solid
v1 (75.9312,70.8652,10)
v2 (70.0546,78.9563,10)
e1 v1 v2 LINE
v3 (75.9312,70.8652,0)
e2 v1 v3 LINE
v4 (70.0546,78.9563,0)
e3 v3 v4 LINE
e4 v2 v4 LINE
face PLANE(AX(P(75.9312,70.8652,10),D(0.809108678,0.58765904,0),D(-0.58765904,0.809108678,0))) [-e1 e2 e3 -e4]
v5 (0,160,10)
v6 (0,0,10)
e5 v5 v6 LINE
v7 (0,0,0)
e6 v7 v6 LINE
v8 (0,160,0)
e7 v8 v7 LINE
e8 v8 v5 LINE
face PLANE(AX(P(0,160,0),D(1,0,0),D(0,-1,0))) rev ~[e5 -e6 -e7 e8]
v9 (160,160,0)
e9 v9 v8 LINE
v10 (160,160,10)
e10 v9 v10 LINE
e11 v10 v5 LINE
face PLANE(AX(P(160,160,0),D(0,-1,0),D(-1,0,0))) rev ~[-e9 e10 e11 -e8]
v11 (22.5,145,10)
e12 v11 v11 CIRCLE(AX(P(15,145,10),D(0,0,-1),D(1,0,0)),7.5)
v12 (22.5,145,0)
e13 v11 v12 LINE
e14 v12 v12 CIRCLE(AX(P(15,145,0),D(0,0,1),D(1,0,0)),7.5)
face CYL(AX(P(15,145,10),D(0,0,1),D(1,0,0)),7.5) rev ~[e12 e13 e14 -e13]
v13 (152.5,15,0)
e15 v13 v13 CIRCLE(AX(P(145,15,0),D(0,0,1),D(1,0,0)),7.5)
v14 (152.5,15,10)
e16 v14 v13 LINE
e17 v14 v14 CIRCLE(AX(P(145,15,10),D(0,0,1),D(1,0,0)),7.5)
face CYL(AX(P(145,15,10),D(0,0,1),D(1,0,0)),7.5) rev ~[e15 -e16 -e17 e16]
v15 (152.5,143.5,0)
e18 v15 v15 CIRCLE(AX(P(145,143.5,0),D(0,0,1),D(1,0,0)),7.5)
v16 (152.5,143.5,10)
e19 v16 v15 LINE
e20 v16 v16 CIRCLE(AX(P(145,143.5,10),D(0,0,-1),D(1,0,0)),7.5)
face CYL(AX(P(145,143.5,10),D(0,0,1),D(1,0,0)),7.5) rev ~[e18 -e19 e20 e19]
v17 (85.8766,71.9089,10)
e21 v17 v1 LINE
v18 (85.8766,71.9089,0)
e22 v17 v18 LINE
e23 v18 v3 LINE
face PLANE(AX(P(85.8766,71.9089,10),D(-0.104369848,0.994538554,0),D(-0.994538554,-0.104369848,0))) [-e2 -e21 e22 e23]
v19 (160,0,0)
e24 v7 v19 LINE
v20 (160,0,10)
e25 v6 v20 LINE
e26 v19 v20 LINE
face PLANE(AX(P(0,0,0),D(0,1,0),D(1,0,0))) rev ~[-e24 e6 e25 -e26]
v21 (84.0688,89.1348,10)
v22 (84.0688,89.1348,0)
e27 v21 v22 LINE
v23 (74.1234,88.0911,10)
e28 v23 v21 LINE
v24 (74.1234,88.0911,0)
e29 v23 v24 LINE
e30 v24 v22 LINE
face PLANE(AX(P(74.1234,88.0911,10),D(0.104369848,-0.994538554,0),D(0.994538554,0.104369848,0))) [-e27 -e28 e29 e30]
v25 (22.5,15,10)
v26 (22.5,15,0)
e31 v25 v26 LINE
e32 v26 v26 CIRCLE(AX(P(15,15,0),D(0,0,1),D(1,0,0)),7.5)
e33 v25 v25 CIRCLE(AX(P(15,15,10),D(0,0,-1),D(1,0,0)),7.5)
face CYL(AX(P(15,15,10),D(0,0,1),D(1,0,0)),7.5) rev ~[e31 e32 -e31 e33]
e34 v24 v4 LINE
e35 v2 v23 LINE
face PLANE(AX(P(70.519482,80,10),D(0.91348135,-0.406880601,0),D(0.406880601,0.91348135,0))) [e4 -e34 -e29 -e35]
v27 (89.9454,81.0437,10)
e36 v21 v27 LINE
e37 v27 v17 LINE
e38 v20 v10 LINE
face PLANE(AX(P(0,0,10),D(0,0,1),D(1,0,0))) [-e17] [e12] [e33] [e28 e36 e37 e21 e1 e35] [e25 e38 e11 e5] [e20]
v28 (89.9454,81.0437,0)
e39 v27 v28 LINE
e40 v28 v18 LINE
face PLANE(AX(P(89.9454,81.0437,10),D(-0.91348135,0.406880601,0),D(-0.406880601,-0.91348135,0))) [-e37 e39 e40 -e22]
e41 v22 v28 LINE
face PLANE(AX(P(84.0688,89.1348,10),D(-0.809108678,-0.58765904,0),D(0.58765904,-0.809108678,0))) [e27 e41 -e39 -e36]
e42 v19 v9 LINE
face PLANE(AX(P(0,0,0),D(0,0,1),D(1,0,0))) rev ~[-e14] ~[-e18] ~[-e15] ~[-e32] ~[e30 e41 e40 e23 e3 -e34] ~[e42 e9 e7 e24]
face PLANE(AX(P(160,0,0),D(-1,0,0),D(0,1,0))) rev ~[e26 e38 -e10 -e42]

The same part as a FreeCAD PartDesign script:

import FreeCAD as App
import Part
import Sketcher

V = App.Vector
Q = App.Units.Quantity

doc = App.newDocument("Part")
body = doc.addObject("PartDesign::Body", "Body")

sketch1 = body.newObject("Sketcher::SketchObject", "Sketch")
sketch1.AttachmentSupport = (doc.getObject("XY_Plane"), [""])
sketch1.MapMode = "FlatFace"
sketch1.addGeometry(Part.LineSegment(V(0, 160, 0), V(0, 0, 0)), False)
sketch1.addGeometry(Part.LineSegment(V(0, 0, 0), V(160, 0, 0)), False)
sketch1.addGeometry(Part.LineSegment(V(160, 0, 0), V(160, 160, 0)), False)
sketch1.addGeometry(Part.LineSegment(V(160, 160, 0), V(0, 160, 0)), False)
sketch1.addConstraint(Sketcher.Constraint("Coincident", 0, 2, 1, 1))
sketch1.addConstraint(Sketcher.Constraint("Coincident", 1, 2, 2, 1))
sketch1.addConstraint(Sketcher.Constraint("Coincident", 2, 2, 3, 1))
sketch1.addConstraint(Sketcher.Constraint("Coincident", 3, 2, 0, 1))
sketch1.addConstraint(Sketcher.Constraint("Vertical", 0))
sketch1.addConstraint(Sketcher.Constraint("Horizontal", 1))
sketch1.addConstraint(Sketcher.Constraint("Vertical", 2))
sketch1.addConstraint(Sketcher.Constraint("Horizontal", 3))
sketch1.addConstraint(Sketcher.Constraint("Coincident", 0, 2, -1, 1))
sketch1.addConstraint(Sketcher.Constraint("Equal", 3, 0))
sketch1.addConstraint(Sketcher.Constraint("DistanceX", 1, 1, 1, 2, Q("160 mm")))
pad1 = body.newObject("PartDesign::Pad", "Pad")
pad1.Profile = sketch1
pad1.Length = 10

sketch2 = body.newObject("Sketcher::SketchObject", "Sketch001")
sketch2.AttachmentSupport = (doc.getObject("XY_Plane"), [""])
sketch2.MapMode = "FlatFace"
sketch2.AttachmentOffset = App.Placement(V(0, 0, 10), App.Rotation())
sketch2.addGeometry(Part.Circle(V(145, 15, 0), V(0, 0, 1), 7.5), False)
sketch2.addGeometry(Part.Circle(V(145, 143.5, 0), V(0, 0, 1), 7.5), False)
sketch2.addGeometry(Part.Circle(V(15, 145, 0), V(0, 0, 1), 7.5), False)
sketch2.addGeometry(Part.Circle(V(15, 15, 0), V(0, 0, 1), 7.5), False)
sketch2.addConstraint(Sketcher.Constraint("Equal", 0, 1))
sketch2.addConstraint(Sketcher.Constraint("Equal", 1, 2))
sketch2.addConstraint(Sketcher.Constraint("Equal", 2, 3))
sketch2.addConstraint(Sketcher.Constraint("Horizontal", 0, 3, 3, 3))
sketch2.addConstraint(Sketcher.Constraint("Vertical", 0, 3, 1, 3))
sketch2.addConstraint(Sketcher.Constraint("Vertical", 2, 3, 3, 3))
sketch2.addConstraint(Sketcher.Constraint("Diameter", 0, Q("15 mm")))
sketch2.addConstraint(Sketcher.Constraint("DistanceY", -1, 1, 0, 3, Q("15 mm")))
sketch2.addConstraint(Sketcher.Constraint("DistanceX", -1, 1, 2, 3, Q("15 mm")))
sketch2.addConstraint(Sketcher.Constraint("DistanceX", -1, 1, 0, 3, Q("145 mm")))
sketch2.addConstraint(Sketcher.Constraint("DistanceY", -1, 1, 2, 3, Q("145 mm")))
sketch2.addConstraint(Sketcher.Constraint("DistanceY", -1, 1, 1, 3, Q("143.5 mm")))
pocket1 = body.newObject("PartDesign::Pocket", "Pocket")
pocket1.Profile = sketch2
pocket1.Length = 10

sketch3 = body.newObject("Sketcher::SketchObject", "Sketch002")
sketch3.AttachmentSupport = (doc.getObject("XY_Plane"), [""])
sketch3.MapMode = "FlatFace"
sketch3.AttachmentOffset = App.Placement(V(0, 0, 10), App.Rotation())
sketch3.addGeometry(Part.LineSegment(V(89.9454, 81.0437, 0), V(84.0688, 89.1348, 0)), False)
sketch3.addGeometry(Part.LineSegment(V(84.0688, 89.1348, 0), V(74.1234, 88.0911, 0)), False)
sketch3.addGeometry(Part.LineSegment(V(74.1234, 88.0911, 0), V(70.0546, 78.9563, 0)), False)
sketch3.addGeometry(Part.LineSegment(V(70.0546, 78.9563, 0), V(75.9312, 70.8652, 0)), False)
sketch3.addGeometry(Part.LineSegment(V(75.9312, 70.8652, 0), V(85.8766, 71.9089, 0)), False)
sketch3.addGeometry(Part.LineSegment(V(85.8766, 71.9089, 0), V(89.9454, 81.0437, 0)), False)
sketch3.addConstraint(Sketcher.Constraint("Coincident", 0, 2, 1, 1))
sketch3.addConstraint(Sketcher.Constraint("Coincident", 1, 2, 2, 1))
sketch3.addConstraint(Sketcher.Constraint("Coincident", 2, 2, 3, 1))
sketch3.addConstraint(Sketcher.Constraint("Coincident", 3, 2, 4, 1))
sketch3.addConstraint(Sketcher.Constraint("Coincident", 4, 2, 5, 1))
sketch3.addConstraint(Sketcher.Constraint("Coincident", 5, 2, 0, 1))
sketch3.addConstraint(Sketcher.Constraint("Parallel", 0, 3))
sketch3.addConstraint(Sketcher.Constraint("Parallel", 1, 4))
sketch3.addConstraint(Sketcher.Constraint("Parallel", 2, 5))
sketch3.addConstraint(Sketcher.Constraint("Equal", 0, 1))
sketch3.addConstraint(Sketcher.Constraint("Equal", 1, 2))
sketch3.addConstraint(Sketcher.Constraint("Equal", 2, 3))
sketch3.addConstraint(Sketcher.Constraint("Distance", 0, Q("10 mm")))
sketch3.addConstraint(Sketcher.Constraint("Angle", 0, Q("125.991 deg")))
sketch3.addConstraint(Sketcher.Constraint("Angle", 1, Q("-174.0091 deg")))
sketch3.addConstraint(Sketcher.Constraint("Angle", 2, Q("-114.009 deg")))
sketch3.addConstraint(Sketcher.Constraint("DistanceY", -1, 1, 1, 2, Q("88.091 mm")))
sketch3.addConstraint(Sketcher.Constraint("DistanceX", -1, 1, 0, 2, Q("84.0688 mm")))
pocket2 = body.newObject("PartDesign::Pocket", "Pocket001")
pocket2.Profile = sketch3
pocket2.Length = 10

doc.recompute()
